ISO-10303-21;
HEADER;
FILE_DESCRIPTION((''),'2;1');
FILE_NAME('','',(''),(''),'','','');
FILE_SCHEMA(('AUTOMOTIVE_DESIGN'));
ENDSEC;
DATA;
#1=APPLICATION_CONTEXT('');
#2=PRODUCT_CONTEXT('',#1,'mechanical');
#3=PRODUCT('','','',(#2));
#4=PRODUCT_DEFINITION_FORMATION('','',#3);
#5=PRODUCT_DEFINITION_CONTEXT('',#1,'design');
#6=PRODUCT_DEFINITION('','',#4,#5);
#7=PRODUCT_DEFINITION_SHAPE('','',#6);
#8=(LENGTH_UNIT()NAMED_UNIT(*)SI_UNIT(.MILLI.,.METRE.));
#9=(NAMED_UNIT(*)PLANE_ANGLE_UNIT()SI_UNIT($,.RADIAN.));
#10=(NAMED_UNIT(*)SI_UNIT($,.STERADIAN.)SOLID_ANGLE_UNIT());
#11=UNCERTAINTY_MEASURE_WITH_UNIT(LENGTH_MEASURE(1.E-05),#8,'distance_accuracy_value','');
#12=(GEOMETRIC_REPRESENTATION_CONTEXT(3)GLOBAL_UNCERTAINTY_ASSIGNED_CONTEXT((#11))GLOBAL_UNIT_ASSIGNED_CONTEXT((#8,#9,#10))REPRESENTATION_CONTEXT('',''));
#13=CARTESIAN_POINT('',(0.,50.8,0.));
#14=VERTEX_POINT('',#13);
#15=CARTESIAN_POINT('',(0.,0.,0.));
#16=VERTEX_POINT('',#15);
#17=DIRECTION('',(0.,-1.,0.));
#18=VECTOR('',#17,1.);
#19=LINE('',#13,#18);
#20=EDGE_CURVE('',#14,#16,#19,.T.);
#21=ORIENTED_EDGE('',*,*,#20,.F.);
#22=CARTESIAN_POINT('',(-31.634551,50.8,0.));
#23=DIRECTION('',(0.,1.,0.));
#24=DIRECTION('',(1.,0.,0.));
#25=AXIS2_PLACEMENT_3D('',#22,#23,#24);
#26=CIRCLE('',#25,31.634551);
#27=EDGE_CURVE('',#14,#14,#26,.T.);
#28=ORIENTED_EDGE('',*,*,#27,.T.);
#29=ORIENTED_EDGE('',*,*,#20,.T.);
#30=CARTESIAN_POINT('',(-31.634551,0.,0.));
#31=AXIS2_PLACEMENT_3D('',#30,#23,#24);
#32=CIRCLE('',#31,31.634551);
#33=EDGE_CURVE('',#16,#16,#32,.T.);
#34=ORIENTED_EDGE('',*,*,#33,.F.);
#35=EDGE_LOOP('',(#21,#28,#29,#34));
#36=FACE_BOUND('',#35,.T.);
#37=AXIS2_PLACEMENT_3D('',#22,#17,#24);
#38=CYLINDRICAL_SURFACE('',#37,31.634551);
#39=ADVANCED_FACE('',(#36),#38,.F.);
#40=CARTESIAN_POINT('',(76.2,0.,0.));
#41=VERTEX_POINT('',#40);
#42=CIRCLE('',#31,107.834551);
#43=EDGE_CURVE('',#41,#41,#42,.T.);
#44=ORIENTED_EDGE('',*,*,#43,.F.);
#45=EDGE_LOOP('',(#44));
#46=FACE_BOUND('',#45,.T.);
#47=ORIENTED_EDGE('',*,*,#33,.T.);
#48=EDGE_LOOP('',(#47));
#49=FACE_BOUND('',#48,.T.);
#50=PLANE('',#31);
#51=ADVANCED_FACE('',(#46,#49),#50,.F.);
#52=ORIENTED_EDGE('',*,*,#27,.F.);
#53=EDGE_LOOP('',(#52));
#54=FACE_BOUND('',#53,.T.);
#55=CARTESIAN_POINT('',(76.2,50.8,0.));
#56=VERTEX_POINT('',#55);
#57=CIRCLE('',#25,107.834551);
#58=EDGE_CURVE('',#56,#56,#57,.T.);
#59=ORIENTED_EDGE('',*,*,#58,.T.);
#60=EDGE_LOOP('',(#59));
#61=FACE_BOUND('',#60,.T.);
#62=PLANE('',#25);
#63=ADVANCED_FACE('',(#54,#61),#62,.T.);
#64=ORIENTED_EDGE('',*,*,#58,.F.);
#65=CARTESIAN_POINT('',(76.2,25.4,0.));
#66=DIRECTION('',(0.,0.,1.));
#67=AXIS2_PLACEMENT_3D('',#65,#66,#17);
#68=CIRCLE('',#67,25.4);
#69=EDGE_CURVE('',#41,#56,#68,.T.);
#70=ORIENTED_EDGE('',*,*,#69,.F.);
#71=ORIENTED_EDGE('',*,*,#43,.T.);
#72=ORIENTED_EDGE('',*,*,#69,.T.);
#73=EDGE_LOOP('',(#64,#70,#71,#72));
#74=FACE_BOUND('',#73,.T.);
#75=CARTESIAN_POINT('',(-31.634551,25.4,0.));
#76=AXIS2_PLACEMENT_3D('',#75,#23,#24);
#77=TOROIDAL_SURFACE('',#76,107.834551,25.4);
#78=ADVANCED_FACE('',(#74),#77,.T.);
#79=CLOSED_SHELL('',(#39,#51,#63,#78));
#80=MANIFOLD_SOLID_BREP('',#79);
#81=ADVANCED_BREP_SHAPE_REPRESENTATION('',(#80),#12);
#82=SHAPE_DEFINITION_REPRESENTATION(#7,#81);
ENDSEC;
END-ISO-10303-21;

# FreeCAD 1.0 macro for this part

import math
import FreeCAD as App
import Part
import Sketcher
Q = App.Units.Quantity

doc = App.newDocument("Part")
body = doc.addObject("PartDesign::Body", "Body")

# Sketch on XY plane
sketch1 = doc.addObject("Sketcher::SketchObject", "Sketch")
body.addObject(sketch1)
sketch1.AttachmentSupport = (doc.XY_Plane, [""])
sketch1.MapMode = "FlatFace"
sketch1.addGeometry([
    Part.LineSegment(App.Vector(0, 50.8, 0), App.Vector(0, 0, 0)),
    Part.LineSegment(App.Vector(0, 0, 0), App.Vector(76.2, 0, 0)),
    Part.ArcOfCircle(Part.Circle(App.Vector(76.2, 25.4, 0), App.Vector(0, 0, 1), 25.4), math.radians(-90), math.radians(90)),
    Part.LineSegment(App.Vector(76.2, 50.8, 0), App.Vector(0, 50.8, 0)),
], False)
sketch1.addGeometry(Part.LineSegment(App.Vector(-31.634551, 0, 0), App.Vector(-31.634551, 50.8, 0)), True)  # axis
sketch1.addConstraint([
    Sketcher.Constraint("Coincident", 0, 2, 1, 1),
    Sketcher.Constraint("Tangent", 1, 2, 2, 1),
    Sketcher.Constraint("Tangent", 2, 2, 3, 1),
    Sketcher.Constraint("Coincident", 3, 2, 0, 1),
    Sketcher.Constraint("Vertical", 0),
    Sketcher.Constraint("Horizontal", 1),
    Sketcher.Constraint("Horizontal", 3),
    Sketcher.Constraint("Vertical", 4),
    Sketcher.Constraint("Coincident", 0, 2, -1, 1),
    Sketcher.Constraint("PointOnObject", 4, 1, -1),
    Sketcher.Constraint("Horizontal", 3, 2, 4, 2),
    Sketcher.Constraint("Radius", 2, Q("1 in")),
    Sketcher.Constraint("DistanceX", 1, 1, 1, 2, Q("3 in")),
    Sketcher.Constraint("DistanceX", 4, 1, -1, 1, 31.634551),
])
revolution = doc.addObject("PartDesign::Revolution", "Revolution")
body.addObject(revolution)
revolution.Profile = sketch1
revolution.ReferenceAxis = (sketch1, ["Axis0"])
revolution.Angle = 360

doc.recompute()
